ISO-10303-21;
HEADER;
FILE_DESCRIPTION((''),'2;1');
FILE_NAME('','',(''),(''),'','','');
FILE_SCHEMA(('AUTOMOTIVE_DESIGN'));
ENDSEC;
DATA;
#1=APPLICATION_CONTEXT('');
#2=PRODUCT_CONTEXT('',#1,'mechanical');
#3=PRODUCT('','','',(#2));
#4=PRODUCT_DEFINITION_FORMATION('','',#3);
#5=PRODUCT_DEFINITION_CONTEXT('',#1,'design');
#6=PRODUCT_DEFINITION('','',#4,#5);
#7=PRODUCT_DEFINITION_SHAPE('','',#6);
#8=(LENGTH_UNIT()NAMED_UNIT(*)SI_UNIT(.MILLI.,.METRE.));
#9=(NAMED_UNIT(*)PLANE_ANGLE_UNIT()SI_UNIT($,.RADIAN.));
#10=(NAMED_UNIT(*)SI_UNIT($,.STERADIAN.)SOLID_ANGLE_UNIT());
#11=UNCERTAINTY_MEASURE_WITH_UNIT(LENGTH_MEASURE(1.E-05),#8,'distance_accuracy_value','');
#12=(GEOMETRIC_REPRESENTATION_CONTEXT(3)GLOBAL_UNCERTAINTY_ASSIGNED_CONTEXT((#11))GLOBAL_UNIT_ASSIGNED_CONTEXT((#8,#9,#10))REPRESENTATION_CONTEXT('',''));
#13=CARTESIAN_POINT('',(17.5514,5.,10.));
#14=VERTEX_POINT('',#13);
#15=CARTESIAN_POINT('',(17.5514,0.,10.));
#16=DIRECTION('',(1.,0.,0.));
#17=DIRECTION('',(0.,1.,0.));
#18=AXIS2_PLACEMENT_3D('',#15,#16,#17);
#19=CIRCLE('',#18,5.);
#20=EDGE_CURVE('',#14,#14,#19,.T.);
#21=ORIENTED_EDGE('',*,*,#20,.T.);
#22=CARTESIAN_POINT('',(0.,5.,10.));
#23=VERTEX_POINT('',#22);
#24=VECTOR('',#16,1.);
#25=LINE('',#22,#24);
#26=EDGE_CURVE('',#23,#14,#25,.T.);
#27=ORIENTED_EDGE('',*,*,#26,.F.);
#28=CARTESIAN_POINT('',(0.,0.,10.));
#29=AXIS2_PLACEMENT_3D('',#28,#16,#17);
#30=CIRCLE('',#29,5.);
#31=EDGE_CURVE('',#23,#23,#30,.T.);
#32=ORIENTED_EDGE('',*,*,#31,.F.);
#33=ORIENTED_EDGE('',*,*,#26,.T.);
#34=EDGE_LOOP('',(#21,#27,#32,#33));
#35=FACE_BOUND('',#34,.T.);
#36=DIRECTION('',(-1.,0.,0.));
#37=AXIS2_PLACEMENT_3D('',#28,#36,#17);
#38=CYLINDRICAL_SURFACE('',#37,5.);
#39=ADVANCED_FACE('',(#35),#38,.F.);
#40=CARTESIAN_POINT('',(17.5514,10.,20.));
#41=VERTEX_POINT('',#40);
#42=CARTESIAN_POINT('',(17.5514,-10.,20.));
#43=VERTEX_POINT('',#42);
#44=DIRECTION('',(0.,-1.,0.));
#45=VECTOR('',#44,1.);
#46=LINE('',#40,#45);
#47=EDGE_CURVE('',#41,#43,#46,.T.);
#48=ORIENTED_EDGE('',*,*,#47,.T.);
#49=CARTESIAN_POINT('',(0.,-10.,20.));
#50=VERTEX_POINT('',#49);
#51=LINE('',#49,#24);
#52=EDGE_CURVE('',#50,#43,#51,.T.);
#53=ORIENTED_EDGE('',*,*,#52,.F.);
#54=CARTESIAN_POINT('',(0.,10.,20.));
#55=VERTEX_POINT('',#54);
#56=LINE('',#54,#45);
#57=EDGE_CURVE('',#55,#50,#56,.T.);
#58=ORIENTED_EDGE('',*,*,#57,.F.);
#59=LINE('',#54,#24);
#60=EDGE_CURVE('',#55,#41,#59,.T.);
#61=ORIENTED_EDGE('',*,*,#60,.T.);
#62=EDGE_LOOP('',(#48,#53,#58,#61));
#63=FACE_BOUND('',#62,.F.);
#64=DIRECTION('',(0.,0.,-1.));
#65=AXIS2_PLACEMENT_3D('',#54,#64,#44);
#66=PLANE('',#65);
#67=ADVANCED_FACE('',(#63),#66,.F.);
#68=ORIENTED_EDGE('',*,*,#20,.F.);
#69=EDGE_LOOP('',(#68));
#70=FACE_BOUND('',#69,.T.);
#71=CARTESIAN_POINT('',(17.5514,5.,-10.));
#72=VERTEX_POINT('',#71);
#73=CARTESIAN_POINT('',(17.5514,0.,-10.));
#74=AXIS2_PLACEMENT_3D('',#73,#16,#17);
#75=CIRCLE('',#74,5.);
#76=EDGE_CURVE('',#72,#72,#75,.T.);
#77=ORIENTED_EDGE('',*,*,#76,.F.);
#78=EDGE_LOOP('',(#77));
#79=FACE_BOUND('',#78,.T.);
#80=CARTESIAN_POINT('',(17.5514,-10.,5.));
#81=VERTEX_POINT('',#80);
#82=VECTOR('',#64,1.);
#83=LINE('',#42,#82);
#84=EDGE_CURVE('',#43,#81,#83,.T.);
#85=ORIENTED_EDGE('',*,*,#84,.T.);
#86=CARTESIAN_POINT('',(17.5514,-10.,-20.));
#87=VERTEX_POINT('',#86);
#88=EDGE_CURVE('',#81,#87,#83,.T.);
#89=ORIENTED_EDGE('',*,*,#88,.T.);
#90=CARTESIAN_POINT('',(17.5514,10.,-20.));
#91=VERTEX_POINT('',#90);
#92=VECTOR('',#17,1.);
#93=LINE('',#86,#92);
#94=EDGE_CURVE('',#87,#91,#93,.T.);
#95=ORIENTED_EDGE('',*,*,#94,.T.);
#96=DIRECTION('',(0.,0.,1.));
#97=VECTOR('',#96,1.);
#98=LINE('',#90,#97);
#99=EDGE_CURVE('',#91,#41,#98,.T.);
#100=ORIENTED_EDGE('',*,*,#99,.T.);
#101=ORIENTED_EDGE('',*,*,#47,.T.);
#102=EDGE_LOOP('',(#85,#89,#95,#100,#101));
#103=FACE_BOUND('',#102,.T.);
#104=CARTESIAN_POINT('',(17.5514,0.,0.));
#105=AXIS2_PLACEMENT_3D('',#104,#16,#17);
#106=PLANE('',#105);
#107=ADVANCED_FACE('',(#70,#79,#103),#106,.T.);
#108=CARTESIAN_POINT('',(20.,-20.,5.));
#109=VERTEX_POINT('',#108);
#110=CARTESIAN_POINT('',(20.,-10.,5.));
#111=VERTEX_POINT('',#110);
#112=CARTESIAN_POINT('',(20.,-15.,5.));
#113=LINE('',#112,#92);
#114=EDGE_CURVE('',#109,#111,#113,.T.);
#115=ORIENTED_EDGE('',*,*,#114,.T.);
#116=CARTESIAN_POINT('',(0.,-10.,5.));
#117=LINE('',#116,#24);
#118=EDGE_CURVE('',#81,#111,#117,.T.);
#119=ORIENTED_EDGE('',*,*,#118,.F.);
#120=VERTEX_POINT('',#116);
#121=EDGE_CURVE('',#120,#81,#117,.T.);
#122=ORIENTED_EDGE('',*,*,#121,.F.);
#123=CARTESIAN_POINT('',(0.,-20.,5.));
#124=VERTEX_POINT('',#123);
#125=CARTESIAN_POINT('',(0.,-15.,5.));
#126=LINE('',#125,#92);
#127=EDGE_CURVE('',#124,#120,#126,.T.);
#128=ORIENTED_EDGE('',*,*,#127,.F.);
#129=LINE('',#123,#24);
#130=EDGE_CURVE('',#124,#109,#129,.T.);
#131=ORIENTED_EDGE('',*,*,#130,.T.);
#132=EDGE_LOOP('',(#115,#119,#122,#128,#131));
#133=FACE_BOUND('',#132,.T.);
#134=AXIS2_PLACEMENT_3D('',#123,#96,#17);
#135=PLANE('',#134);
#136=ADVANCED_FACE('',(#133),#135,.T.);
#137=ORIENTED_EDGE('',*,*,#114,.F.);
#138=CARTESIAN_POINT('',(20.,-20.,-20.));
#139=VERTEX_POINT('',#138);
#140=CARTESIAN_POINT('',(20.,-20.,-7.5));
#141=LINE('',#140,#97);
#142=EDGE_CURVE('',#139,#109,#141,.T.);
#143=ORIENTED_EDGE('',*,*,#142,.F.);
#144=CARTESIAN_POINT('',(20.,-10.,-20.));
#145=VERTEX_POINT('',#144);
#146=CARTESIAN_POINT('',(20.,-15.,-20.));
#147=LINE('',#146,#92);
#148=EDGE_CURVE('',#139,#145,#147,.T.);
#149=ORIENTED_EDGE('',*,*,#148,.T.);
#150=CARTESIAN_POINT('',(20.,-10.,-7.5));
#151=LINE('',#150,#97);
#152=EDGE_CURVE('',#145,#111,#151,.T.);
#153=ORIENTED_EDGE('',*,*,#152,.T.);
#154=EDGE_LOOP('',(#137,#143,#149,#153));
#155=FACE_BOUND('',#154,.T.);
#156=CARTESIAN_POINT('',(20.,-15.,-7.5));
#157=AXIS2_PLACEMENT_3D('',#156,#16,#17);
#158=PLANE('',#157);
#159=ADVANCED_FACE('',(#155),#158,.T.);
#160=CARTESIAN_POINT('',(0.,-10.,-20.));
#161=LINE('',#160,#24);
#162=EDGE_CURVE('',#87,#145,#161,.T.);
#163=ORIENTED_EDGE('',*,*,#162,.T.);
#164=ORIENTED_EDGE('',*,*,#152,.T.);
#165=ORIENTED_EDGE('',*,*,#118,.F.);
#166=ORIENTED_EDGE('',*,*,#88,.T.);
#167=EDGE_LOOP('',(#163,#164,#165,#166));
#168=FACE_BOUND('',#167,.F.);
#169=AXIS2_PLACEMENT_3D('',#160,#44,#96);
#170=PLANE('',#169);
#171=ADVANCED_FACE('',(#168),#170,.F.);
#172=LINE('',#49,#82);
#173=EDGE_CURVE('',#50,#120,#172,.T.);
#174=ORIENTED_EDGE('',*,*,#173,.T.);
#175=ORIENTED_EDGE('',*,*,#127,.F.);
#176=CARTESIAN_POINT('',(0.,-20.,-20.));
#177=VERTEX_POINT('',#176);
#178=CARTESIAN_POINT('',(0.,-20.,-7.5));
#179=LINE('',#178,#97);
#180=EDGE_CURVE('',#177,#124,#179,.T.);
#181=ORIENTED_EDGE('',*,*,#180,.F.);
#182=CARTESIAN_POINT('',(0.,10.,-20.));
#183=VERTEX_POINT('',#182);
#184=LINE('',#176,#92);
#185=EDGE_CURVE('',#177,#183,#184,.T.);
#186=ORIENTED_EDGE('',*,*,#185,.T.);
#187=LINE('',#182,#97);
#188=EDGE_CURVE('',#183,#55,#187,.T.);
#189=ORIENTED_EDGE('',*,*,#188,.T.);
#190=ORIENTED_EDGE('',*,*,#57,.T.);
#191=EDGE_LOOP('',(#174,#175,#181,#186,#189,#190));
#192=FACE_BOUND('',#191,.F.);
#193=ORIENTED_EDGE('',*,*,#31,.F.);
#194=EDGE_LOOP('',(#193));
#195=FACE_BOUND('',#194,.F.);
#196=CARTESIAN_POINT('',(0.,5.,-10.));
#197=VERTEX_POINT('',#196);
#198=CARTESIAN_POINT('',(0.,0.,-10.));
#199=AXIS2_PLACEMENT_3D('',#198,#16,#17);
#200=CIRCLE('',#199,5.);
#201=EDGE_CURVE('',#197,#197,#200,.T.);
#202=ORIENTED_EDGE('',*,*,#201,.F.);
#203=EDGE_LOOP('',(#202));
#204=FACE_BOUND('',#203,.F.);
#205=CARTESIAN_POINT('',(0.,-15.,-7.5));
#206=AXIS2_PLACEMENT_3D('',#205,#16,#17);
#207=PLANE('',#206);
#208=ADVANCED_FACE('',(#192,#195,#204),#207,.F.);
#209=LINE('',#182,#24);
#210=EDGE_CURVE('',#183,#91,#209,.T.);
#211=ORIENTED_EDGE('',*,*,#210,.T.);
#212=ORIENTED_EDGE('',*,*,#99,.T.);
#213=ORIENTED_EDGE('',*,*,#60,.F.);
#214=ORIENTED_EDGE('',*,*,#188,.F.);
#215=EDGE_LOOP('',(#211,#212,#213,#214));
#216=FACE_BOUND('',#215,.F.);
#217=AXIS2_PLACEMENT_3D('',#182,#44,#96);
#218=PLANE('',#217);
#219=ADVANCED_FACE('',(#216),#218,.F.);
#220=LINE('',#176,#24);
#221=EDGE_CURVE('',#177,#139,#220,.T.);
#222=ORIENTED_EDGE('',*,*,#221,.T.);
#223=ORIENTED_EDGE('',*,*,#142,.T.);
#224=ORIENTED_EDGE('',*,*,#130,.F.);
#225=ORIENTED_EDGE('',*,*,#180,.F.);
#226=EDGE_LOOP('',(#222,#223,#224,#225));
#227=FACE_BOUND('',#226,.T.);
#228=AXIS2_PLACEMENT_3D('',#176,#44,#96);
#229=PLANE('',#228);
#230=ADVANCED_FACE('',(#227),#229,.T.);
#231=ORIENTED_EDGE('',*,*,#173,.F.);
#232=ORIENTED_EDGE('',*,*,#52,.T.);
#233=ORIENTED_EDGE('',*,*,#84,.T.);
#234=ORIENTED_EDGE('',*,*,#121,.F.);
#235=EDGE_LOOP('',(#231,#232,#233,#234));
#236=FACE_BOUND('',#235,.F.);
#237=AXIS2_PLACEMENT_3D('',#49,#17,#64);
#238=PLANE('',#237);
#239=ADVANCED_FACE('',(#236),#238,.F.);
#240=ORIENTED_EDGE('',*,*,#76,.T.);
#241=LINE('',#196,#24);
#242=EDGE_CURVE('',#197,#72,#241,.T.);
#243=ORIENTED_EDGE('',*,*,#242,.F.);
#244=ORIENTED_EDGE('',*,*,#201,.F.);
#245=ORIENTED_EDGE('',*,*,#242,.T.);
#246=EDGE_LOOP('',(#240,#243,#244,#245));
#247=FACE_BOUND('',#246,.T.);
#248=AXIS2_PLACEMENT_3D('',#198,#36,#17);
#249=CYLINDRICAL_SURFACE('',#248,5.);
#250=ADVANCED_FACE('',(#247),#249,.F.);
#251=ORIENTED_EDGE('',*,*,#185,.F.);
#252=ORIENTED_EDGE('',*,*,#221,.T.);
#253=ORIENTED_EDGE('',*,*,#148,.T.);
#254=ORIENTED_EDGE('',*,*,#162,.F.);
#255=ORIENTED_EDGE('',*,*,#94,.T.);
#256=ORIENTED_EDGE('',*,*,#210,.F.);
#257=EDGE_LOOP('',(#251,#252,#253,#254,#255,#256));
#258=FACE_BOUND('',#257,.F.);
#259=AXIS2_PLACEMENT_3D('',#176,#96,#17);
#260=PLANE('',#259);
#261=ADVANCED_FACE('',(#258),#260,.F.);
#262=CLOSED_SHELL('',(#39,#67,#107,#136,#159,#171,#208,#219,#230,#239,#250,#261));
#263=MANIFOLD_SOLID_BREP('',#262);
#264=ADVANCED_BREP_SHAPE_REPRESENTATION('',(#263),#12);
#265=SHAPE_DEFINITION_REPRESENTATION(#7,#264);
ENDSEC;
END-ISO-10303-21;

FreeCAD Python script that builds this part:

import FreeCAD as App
import Part
import Sketcher
from FreeCAD import Vector


def add_polygon(sketch, points):
    """Adds a closed chain of lines whose ends are joined by coincident constraints."""
    first, n = sketch.GeometryCount, len(points)
    for a, b in zip(points, points[1:] + points[:1]):
        sketch.addGeometry(Part.LineSegment(App.Vector(*a, 0), App.Vector(*b, 0)), False)
    for i in range(n):
        sketch.addConstraint(Sketcher.Constraint("Coincident", first + i, 2, first + (i + 1) % n, 1))

doc = App.newDocument("Part")
body = doc.addObject("PartDesign::Body", "Body")

# Sketch on YZ plane
sketch1 = body.newObject("Sketcher::SketchObject", "Sketch")
sketch1.AttachmentSupport = (doc.getObject("YZ_Plane"), [""])
sketch1.MapMode = "FlatFace"
add_polygon(sketch1, [(10, -20), (10, 20), (-10, 20), (-10, -20)])  # lines 0-3
sketch1.addGeometry(Part.Circle(Vector(0, -10, 0), Vector(0, 0, 1), 5), False)  # 4
sketch1.addConstraint([
    Sketcher.Constraint("Vertical", 0),
    Sketcher.Constraint("Horizontal", 1),
    Sketcher.Constraint("Vertical", 2),
    Sketcher.Constraint("Horizontal", 3),
    Sketcher.Constraint("Symmetric", 0, 2, 2, 2, -1, 1),
    Sketcher.Constraint("PointOnObject", 4, 3, -2),
    Sketcher.Constraint("Diameter", 4, 10.0),
    Sketcher.Constraint("DistanceX", 1, 2, 1, 1, 20.0),
    Sketcher.Constraint("DistanceY", 0, 1, 0, 2, 40.0),
    Sketcher.Constraint("DistanceY", 4, 3, -1, 1, 10.0),
])
pad1 = body.newObject("PartDesign::Pad", "Pad")
pad1.Profile = sketch1
pad1.Length = 17.5514

# Sketch on YZ plane
sketch2 = body.newObject("Sketcher::SketchObject", "Sketch001")
sketch2.AttachmentSupport = (doc.getObject("YZ_Plane"), [""])
sketch2.MapMode = "FlatFace"
add_polygon(sketch2, [(-20, 5), (-20, -20), (-10, -20), (-10, 5)])  # lines 0-3
sketch2.addConstraint([
    Sketcher.Constraint("Vertical", 0),
    Sketcher.Constraint("Horizontal", 1),
    Sketcher.Constraint("Vertical", 2),
    Sketcher.Constraint("Horizontal", 3),
    Sketcher.Constraint("DistanceX", 1, 1, 1, 2, 10.0),
    Sketcher.Constraint("DistanceY", 0, 2, 0, 1, 25.0),
    Sketcher.Constraint("DistanceX", 0, 2, -1, 1, 20.0),
    Sketcher.Constraint("DistanceY", 0, 2, -1, 1, 20.0),
])
pad2 = body.newObject("PartDesign::Pad", "Pad001")
pad2.Profile = sketch2
pad2.Length = 20

# Sketch on YZ plane
sketch3 = body.newObject("Sketcher::SketchObject", "Sketch002")
sketch3.AttachmentSupport = (doc.getObject("YZ_Plane"), [""])
sketch3.MapMode = "FlatFace"
sketch3.addGeometry(Part.Circle(Vector(0, 10, 0), Vector(0, 0, 1), 5), False)
sketch3.addConstraint([
    Sketcher.Constraint("PointOnObject", 0, 3, -2),
    Sketcher.Constraint("Diameter", 0, 10.0),
    Sketcher.Constraint("DistanceY", -1, 1, 0, 3, 10.0),
])
pocket1 = body.newObject("PartDesign::Pocket", "Pocket")
pocket1.Profile = sketch3
pocket1.Type = "ThroughAll"
pocket1.Reversed = True

doc.recompute()
